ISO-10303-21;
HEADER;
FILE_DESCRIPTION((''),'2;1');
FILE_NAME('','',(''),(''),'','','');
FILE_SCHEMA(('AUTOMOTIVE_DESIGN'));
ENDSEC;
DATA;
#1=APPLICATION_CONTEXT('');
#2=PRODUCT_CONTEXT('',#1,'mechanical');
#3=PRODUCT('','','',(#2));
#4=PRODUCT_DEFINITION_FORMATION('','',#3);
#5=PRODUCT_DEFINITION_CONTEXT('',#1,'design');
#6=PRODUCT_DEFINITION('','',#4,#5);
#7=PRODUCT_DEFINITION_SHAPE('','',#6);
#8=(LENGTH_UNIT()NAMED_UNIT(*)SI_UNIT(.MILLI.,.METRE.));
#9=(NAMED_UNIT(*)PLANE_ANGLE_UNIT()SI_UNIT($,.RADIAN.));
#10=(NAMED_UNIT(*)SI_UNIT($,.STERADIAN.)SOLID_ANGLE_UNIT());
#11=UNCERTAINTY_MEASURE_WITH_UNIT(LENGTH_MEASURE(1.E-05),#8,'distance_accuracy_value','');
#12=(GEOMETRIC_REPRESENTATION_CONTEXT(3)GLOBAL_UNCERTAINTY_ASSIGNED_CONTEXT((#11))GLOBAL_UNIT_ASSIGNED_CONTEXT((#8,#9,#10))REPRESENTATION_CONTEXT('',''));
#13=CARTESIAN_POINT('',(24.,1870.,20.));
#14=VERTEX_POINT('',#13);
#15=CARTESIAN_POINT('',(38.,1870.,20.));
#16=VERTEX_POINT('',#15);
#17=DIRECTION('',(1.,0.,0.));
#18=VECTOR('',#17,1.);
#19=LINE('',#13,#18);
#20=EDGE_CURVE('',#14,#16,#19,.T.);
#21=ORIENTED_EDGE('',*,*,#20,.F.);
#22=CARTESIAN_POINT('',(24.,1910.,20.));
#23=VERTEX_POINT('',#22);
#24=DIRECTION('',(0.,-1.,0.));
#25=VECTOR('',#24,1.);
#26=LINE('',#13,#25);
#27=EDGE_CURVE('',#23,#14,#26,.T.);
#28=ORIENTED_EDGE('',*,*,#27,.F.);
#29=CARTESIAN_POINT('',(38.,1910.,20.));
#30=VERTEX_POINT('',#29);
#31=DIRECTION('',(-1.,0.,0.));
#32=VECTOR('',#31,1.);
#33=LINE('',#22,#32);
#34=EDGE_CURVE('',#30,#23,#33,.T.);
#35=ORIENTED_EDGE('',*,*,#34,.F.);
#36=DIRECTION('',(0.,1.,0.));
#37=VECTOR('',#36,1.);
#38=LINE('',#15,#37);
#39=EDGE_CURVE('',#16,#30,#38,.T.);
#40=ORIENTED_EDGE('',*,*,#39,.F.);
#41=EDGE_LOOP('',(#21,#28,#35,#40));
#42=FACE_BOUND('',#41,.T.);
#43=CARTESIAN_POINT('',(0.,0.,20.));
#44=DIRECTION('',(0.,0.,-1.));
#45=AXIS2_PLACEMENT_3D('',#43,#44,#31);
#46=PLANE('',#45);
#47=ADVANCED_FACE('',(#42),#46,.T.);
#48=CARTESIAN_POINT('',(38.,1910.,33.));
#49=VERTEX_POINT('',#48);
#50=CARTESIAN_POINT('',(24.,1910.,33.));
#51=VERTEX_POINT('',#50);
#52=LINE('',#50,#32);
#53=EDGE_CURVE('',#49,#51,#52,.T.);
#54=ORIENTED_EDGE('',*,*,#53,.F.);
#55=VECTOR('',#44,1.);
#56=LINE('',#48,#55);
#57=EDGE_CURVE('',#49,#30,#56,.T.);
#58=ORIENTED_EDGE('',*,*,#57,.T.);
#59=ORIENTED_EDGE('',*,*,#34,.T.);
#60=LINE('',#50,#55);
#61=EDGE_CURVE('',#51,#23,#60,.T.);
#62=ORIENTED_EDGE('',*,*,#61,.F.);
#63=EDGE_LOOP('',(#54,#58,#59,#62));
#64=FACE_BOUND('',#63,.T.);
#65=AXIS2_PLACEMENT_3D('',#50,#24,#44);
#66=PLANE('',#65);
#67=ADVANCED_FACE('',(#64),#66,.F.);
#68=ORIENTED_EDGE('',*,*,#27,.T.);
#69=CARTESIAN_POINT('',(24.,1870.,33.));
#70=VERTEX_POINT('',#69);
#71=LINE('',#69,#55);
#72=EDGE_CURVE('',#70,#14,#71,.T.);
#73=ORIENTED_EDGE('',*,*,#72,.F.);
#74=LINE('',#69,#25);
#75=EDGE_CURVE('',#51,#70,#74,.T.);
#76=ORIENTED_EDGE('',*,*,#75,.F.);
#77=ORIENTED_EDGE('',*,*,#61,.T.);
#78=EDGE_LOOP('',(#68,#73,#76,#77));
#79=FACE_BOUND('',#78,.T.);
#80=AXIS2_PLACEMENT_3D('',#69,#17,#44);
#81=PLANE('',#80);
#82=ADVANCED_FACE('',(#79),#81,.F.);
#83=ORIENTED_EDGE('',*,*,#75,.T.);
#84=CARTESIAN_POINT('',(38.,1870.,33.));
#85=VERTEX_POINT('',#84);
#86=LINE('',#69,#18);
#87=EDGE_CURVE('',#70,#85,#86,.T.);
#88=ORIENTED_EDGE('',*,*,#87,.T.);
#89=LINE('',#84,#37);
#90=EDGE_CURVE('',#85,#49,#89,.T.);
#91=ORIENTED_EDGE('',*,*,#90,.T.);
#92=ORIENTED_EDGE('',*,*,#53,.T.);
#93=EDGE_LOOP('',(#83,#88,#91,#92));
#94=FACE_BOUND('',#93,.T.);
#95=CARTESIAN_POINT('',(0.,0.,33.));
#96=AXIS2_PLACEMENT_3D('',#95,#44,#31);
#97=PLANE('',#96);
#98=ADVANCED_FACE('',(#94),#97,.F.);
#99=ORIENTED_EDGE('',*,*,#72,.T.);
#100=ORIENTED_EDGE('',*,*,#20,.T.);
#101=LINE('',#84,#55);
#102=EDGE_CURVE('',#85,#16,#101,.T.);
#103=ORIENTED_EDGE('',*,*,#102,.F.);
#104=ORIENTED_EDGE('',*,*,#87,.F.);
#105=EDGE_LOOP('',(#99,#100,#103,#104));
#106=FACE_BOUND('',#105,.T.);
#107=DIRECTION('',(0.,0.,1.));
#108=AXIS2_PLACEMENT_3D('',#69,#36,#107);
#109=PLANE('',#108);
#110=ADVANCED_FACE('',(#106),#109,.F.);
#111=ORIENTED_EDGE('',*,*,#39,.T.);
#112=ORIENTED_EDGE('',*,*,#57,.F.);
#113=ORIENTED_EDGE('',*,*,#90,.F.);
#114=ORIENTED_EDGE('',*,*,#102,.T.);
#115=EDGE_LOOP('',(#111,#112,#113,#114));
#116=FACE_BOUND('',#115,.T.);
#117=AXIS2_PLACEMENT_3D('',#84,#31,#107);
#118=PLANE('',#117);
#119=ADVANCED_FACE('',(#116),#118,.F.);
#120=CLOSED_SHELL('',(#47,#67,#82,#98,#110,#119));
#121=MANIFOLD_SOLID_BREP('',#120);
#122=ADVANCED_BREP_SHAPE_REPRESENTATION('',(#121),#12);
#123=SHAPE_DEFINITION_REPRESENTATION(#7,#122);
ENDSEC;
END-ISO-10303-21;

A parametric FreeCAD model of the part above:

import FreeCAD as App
import Part
import Sketcher
from FreeCAD import Vector
Q = App.Units.Quantity

doc = App.newDocument("Part")
body = doc.addObject("PartDesign::Body", "Body")

sketch1 = doc.addObject("Sketcher::SketchObject", "Sketch")
body.addObject(sketch1)
sketch1.AttachmentSupport = (doc.XY_Plane, [""])
sketch1.MapMode = "FlatFace"
sketch1.AttachmentOffset = App.Placement(Vector(0, 0, 20), App.Rotation())
sketch1.addGeometry(Part.LineSegment(Vector(24, 1910, 0), Vector(24, 1870, 0)), False)
sketch1.addGeometry(Part.LineSegment(Vector(24, 1870, 0), Vector(38, 1870, 0)), False)
sketch1.addGeometry(Part.LineSegment(Vector(38, 1870, 0), Vector(38, 1910, 0)), False)
sketch1.addGeometry(Part.LineSegment(Vector(38, 1910, 0), Vector(24, 1910, 0)), False)
sketch1.addConstraint(Sketcher.Constraint("Coincident", 0, 2, 1, 1))
sketch1.addConstraint(Sketcher.Constraint("Coincident", 1, 2, 2, 1))
sketch1.addConstraint(Sketcher.Constraint("Coincident", 2, 2, 3, 1))
sketch1.addConstraint(Sketcher.Constraint("Coincident", 3, 2, 0, 1))
sketch1.addConstraint(Sketcher.Constraint("Vertical", 0))
sketch1.addConstraint(Sketcher.Constraint("Horizontal", 1))
sketch1.addConstraint(Sketcher.Constraint("Vertical", 2))
sketch1.addConstraint(Sketcher.Constraint("Horizontal", 3))
sketch1.addConstraint(Sketcher.Constraint("DistanceX", 1, 1, 1, 2, Q("14 mm")))
sketch1.addConstraint(Sketcher.Constraint("DistanceY", 0, 2, 0, 1, Q("40 mm")))
sketch1.addConstraint(Sketcher.Constraint("DistanceX", -1, 1, 0, 2, Q("24 mm")))
sketch1.addConstraint(Sketcher.Constraint("DistanceY", -1, 1, 0, 2, Q("1870 mm")))
pad1 = doc.addObject("PartDesign::Pad", "Pad")
body.addObject(pad1)
pad1.Profile = sketch1
pad1.Length = 13

doc.recompute()
